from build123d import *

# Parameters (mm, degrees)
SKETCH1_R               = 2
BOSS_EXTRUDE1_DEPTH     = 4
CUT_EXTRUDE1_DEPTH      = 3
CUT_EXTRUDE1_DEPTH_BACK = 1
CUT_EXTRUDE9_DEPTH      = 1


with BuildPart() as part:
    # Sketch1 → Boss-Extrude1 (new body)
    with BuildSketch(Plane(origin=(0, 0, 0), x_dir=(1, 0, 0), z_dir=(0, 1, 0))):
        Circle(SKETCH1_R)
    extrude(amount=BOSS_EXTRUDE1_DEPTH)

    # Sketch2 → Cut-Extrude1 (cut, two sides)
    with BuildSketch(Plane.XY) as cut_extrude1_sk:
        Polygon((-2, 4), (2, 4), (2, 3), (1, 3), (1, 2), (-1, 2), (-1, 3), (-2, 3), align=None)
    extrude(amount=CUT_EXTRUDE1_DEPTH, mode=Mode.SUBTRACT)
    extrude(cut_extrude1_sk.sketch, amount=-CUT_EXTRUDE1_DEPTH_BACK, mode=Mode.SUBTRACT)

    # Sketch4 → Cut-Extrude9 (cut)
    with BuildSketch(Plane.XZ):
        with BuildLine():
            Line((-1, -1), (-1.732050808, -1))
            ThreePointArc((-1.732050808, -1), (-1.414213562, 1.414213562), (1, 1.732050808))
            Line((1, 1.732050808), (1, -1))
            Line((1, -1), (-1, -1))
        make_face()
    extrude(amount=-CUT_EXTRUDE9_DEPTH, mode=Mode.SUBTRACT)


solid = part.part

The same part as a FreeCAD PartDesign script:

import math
import FreeCAD as App
import Part
import Sketcher
from FreeCAD import Vector
Q = App.Units.Quantity


def add_polygon(sketch, points):
    """Adds a closed chain of lines whose ends are joined by coincident constraints."""
    first, n = sketch.GeometryCount, len(points)
    for a, b in zip(points, points[1:] + points[:1]):
        sketch.addGeometry(Part.LineSegment(App.Vector(*a, 0), App.Vector(*b, 0)), False)
    for i in range(n):
        sketch.addConstraint(Sketcher.Constraint("Coincident", first + i, 2, first + (i + 1) % n, 1))

doc = App.newDocument("Part")
body = doc.addObject("PartDesign::Body", "Body")

# Sketch on XZ plane
sketch1 = doc.addObject("Sketcher::SketchObject", "Sketch")
body.addObject(sketch1)
sketch1.AttachmentSupport = (doc.XZ_Plane, [""])
sketch1.MapMode = "FlatFace"
sketch1.addGeometry(Part.Circle(Vector(0, 0, 0), Vector(0, 0, 1), 2), False)
sketch1.addConstraint([
    Sketcher.Constraint("Coincident", 0, 3, -1, 1),
    Sketcher.Constraint("Diameter", 0, Q("4 mm")),
])
pad1 = doc.addObject("PartDesign::Pad", "Pad")
body.addObject(pad1)
pad1.Profile = sketch1
pad1.Length = 4
pad1.Reversed = True

# Sketch on XY plane
sketch2 = doc.addObject("Sketcher::SketchObject", "Sketch001")
body.addObject(sketch2)
sketch2.AttachmentSupport = (doc.XY_Plane, [""])
sketch2.MapMode = "FlatFace"
add_polygon(sketch2, [(2, 4), (-2, 4), (-2, 3), (-1, 3), (-1, 2), (1, 2), (1, 3), (2, 3)])  # lines 0-7
sketch2.addConstraint([
    Sketcher.Constraint("Horizontal", 0),
    Sketcher.Constraint("Vertical", 1),
    Sketcher.Constraint("Horizontal", 2),
    Sketcher.Constraint("Vertical", 3),
    Sketcher.Constraint("Horizontal", 4),
    Sketcher.Constraint("Vertical", 5),
    Sketcher.Constraint("Horizontal", 6),
    Sketcher.Constraint("Vertical", 7),
    Sketcher.Constraint("Symmetric", 2, 2, 5, 2, -2),
    Sketcher.Constraint("Equal", 2, 6),
    Sketcher.Constraint("Equal", 6, 1),
    Sketcher.Constraint("Equal", 1, 3),
    Sketcher.Constraint("DistanceX", 0, 2, 0, 1, Q("4 mm")),
    Sketcher.Constraint("DistanceX", 2, 1, 2, 2, Q("1 mm")),
    Sketcher.Constraint("DistanceY", -1, 1, 0, 2, Q("4 mm")),
])
pocket1 = doc.addObject("PartDesign::Pocket", "Pocket")
body.addObject(pocket1)
pocket1.Profile = sketch2
pocket1.Type = "TwoLengths"
pocket1.Length = 3
pocket1.Length2 = 1
pocket1.Reversed = True

# Sketch on XZ plane
sketch3 = doc.addObject("Sketcher::SketchObject", "Sketch002")
body.addObject(sketch3)
sketch3.AttachmentSupport = (doc.XZ_Plane, [""])
sketch3.MapMode = "FlatFace"
sketch3.addGeometry([
    Part.ArcOfCircle(Part.Circle(Vector(0, 0, 0), Vector(0, 0, 1), 2), math.radians(60), math.radians(210)),
    Part.LineSegment(Vector(-1.732051, -1, 0), Vector(1, -1, 0)),
    Part.LineSegment(Vector(1, -1, 0), Vector(1, 1.732051, 0)),
], False)
sketch3.addConstraint([
    Sketcher.Constraint("Coincident", 0, 2, 1, 1),
    Sketcher.Constraint("Coincident", 1, 2, 2, 1),
    Sketcher.Constraint("Coincident", 2, 2, 0, 1),
    Sketcher.Constraint("Horizontal", 1),
    Sketcher.Constraint("Vertical", 2),
    Sketcher.Constraint("Coincident", 0, 3, -1, 1),
    Sketcher.Constraint("Equal", 1, 2),
    Sketcher.Constraint("Radius", 0, Q("2 mm")),
    Sketcher.Constraint("DistanceY", 0, 2, -1, 1, Q("1 mm")),
])
pocket2 = doc.addObject("PartDesign::Pocket", "Pocket001")
body.addObject(pocket2)
pocket2.Profile = sketch3
pocket2.Length = 1

doc.recompute()
